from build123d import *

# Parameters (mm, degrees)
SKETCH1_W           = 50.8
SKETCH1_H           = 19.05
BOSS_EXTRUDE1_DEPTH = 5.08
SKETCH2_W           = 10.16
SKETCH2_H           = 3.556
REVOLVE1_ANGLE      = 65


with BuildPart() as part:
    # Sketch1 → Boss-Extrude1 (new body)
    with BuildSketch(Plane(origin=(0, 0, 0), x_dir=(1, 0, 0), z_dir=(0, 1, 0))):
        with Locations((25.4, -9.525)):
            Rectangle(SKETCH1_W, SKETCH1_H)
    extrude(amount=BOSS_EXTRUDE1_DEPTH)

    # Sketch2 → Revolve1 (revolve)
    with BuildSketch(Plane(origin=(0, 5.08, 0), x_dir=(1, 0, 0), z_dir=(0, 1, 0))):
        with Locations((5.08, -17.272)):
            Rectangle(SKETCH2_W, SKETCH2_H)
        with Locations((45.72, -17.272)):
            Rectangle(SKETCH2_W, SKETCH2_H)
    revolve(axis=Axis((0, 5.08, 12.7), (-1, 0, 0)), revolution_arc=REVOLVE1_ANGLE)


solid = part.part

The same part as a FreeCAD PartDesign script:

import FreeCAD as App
import Part
import Sketcher

V = App.Vector
Q = App.Units.Quantity


def add_polygon(sketch, points):
    """Adds a closed chain of lines whose ends are joined by coincident constraints."""
    first, n = sketch.GeometryCount, len(points)
    for a, b in zip(points, points[1:] + points[:1]):
        sketch.addGeometry(Part.LineSegment(App.Vector(*a, 0), App.Vector(*b, 0)), False)
    for i in range(n):
        sketch.addConstraint(Sketcher.Constraint("Coincident", first + i, 2, first + (i + 1) % n, 1))

doc = App.newDocument("Part")
params = doc.addObject("Spreadsheet::Sheet", "Params")
for row, (alias, value) in enumerate([
    ("sketch1_width", "2 in"),
    ("sketch1_height", "0.75 in"),
    ("pad1_length", "0.2 in"),
    ("sketch2_width", "2 in"),
    ("sketch2_width2", "0.4 in"),
    ("sketch2_height", "0.14 in"),
    ("revolution_angle", "65 deg"),
], start=1):
    params.set(f"A{row}", alias)
    params.set(f"B{row}", "=" + value)
    params.setAlias(f"B{row}", alias)

body = doc.addObject("PartDesign::Body", "Body")

# Sketch on XZ plane
sketch1 = body.newObject("Sketcher::SketchObject", "Sketch")
sketch1.AttachmentSupport = (doc.getObject("XZ_Plane"), [""])
sketch1.MapMode = "FlatFace"
add_polygon(sketch1, [(0, 0), (0, 19), (51, 19), (51, 0)])  # lines 0-3
sketch1.addConstraint(Sketcher.Constraint("Vertical", 0))
sketch1.addConstraint(Sketcher.Constraint("Horizontal", 1))
sketch1.addConstraint(Sketcher.Constraint("Vertical", 2))
sketch1.addConstraint(Sketcher.Constraint("Horizontal", 3))
sketch1.addConstraint(Sketcher.Constraint("Coincident", 3, 2, -1, 1))
sketch1.addConstraint(Sketcher.Constraint("DistanceX", 1, 1, 1, 2, Q("2 in")))
sketch1.addConstraint(Sketcher.Constraint("DistanceY", 0, 1, 0, 2, Q("0.75 in")))
sketch1.setExpression("Constraints[9]", "Params.sketch1_width")
sketch1.setExpression("Constraints[10]", "Params.sketch1_height")
pad1 = body.newObject("PartDesign::Pad", "Pad")
pad1.Profile = sketch1
pad1.setExpression("Length", "Params.pad1_length")
pad1.Reversed = True

# Sketch on XZ plane
sketch2 = body.newObject("Sketcher::SketchObject", "Sketch001")
sketch2.AttachmentSupport = (doc.getObject("XZ_Plane"), [""])
sketch2.MapMode = "FlatFace"
sketch2.AttachmentOffset = App.Placement(V(0, 0, -0.2 * 25.4), App.Rotation())
add_polygon(sketch2, [(0, 15.5), (0, 19.1), (10.2, 19.1), (10.2, 15.5)])  # lines 0-3
add_polygon(sketch2, [(40.6, 15.5), (40.6, 19.1), (50.8, 19.1), (50.8, 15.5)])  # lines 4-7
sketch2.addGeometry(Part.LineSegment(V(50.8, 12.7, 0), V(0, 12.7, 0)), True)  # axis
sketch2.addConstraint(Sketcher.Constraint("Vertical", 0))
sketch2.addConstraint(Sketcher.Constraint("Horizontal", 1))
sketch2.addConstraint(Sketcher.Constraint("Vertical", 2))
sketch2.addConstraint(Sketcher.Constraint("Horizontal", 3))
sketch2.addConstraint(Sketcher.Constraint("Vertical", 4))
sketch2.addConstraint(Sketcher.Constraint("Horizontal", 5))
sketch2.addConstraint(Sketcher.Constraint("Vertical", 6))
sketch2.addConstraint(Sketcher.Constraint("Horizontal", 7))
sketch2.addConstraint(Sketcher.Constraint("Horizontal", 8))
sketch2.addConstraint(Sketcher.Constraint("PointOnObject", 0, 2, -2))
sketch2.addConstraint(Sketcher.Constraint("PointOnObject", 8, 2, -2))
sketch2.addConstraint(Sketcher.Constraint("Horizontal", 1, 2, 4, 2))
sketch2.addConstraint(Sketcher.Constraint("Horizontal", 3, 2, 6, 2))
sketch2.addConstraint(Sketcher.Constraint("Vertical", 6, 2, 8, 1))
sketch2.addConstraint(Sketcher.Constraint("Equal", 3, 5))
sketch2.addConstraint(Sketcher.Constraint("DistanceX", 8, 2, 8, 1, Q("2 in")))
sketch2.addConstraint(Sketcher.Constraint("DistanceX", 1, 1, 1, 2, Q("0.4 in")))
sketch2.addConstraint(Sketcher.Constraint("DistanceY", 0, 1, 0, 2, Q("0.14 in")))
sketch2.addConstraint(Sketcher.Constraint("DistanceY", -1, 1, 8, 1, Q("0.5 in")))
sketch2.addConstraint(Sketcher.Constraint("DistanceY", -1, 1, 0, 2, Q("0.75 in")))
sketch2.setExpression("Constraints[23]", "Params.sketch2_width")
sketch2.setExpression("Constraints[24]", "Params.sketch2_width2")
sketch2.setExpression("Constraints[25]", "Params.sketch2_height")
revolution = body.newObject("PartDesign::Revolution", "Revolution")
revolution.Profile = sketch2
revolution.ReferenceAxis = (sketch2, ["Axis0"])
revolution.setExpression("Angle", "Params.revolution_angle")

doc.recompute()
